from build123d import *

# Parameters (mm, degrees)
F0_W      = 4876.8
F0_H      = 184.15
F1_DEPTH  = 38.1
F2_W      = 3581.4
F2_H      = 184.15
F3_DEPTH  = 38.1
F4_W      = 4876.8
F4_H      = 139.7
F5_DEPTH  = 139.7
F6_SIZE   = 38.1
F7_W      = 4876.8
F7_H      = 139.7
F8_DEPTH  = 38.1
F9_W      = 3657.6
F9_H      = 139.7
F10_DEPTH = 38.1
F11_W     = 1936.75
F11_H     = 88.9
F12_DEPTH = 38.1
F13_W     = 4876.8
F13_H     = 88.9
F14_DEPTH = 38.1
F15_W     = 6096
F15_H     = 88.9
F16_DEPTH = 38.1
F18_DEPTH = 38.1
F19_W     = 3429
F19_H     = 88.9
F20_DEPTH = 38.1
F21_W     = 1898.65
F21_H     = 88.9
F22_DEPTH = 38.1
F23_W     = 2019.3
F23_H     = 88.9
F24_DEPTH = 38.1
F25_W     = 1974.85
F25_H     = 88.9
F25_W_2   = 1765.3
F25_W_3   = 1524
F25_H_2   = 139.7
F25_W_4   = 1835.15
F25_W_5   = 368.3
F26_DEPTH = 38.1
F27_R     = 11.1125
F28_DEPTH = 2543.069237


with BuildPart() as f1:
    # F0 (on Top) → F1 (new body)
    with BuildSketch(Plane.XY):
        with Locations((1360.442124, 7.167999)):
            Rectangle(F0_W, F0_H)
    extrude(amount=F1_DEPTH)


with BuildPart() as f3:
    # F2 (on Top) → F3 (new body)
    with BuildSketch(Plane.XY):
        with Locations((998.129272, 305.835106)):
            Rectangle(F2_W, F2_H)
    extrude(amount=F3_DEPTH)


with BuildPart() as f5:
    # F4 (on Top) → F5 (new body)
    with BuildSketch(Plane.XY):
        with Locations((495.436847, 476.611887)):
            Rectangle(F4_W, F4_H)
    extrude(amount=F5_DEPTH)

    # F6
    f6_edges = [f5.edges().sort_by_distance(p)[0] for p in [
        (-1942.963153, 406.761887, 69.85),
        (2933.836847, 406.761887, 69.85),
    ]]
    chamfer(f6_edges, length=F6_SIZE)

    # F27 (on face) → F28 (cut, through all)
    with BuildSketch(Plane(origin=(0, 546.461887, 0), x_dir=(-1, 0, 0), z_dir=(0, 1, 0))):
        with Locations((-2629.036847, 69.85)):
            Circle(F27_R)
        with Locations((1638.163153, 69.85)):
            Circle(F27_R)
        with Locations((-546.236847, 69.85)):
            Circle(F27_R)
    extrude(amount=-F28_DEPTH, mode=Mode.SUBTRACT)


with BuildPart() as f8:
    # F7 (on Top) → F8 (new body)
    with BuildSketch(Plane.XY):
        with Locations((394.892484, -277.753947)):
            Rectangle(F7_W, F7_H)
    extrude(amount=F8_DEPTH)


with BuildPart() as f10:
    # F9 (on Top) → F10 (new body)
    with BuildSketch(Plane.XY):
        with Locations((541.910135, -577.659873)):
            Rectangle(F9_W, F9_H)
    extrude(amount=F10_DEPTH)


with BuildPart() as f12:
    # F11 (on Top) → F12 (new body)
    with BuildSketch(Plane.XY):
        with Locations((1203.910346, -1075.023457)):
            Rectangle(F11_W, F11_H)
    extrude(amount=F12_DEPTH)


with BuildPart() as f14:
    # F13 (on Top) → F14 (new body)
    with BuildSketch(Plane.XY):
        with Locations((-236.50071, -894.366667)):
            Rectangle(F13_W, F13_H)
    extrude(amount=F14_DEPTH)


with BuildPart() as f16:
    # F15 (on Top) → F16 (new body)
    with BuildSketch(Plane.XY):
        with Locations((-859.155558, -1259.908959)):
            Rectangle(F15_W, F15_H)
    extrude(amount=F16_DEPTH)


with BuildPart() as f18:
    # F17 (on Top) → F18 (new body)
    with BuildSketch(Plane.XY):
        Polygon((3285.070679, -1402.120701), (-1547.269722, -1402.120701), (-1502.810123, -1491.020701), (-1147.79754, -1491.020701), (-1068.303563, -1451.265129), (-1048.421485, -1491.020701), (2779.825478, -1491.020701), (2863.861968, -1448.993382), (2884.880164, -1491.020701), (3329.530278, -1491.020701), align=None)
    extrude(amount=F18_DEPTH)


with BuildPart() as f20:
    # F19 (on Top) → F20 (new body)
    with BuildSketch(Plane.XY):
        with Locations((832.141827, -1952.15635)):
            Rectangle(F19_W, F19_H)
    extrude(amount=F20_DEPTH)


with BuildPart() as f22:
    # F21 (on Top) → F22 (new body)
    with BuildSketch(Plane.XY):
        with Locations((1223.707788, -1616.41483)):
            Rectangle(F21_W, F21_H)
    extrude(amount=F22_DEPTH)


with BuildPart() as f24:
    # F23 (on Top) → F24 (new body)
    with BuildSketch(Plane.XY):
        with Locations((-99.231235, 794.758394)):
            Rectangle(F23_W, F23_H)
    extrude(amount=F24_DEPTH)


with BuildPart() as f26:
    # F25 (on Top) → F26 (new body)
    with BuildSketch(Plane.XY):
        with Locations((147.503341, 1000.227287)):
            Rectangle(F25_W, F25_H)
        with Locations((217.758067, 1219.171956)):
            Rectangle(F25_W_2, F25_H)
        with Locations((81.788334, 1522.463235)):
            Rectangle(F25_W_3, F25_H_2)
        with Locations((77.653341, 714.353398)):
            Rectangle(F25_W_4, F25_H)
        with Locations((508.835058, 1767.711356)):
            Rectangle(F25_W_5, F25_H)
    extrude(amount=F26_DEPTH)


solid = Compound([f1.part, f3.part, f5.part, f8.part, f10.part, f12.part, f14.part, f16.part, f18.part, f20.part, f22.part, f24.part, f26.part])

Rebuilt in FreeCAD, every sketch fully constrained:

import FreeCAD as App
import Part
import Sketcher
from FreeCAD import Vector
Q = App.Units.Quantity


def edges_at(feature, points):
    """Names of the edges that pass closest to the given points."""
    edges = feature.Shape.Edges
    near = lambda p: min(range(len(edges)), key=lambda i: edges[i].distToShape(Part.Vertex(*p))[0])
    return sorted({f"Edge{near(p) + 1}" for p in points})

doc = App.newDocument("Part")
body = doc.addObject("PartDesign::Body", "Body")

# Sketch on XY plane
sketch1 = body.newObject("Sketcher::SketchObject", "Sketch")
sketch1.AttachmentSupport = (doc.getObject("XY_Plane"), [""])
sketch1.MapMode = "FlatFace"
sketch1.addGeometry(Part.LineSegment(Vector(-1078, 99, 0), Vector(-1078, -85, 0)), False)
sketch1.addGeometry(Part.LineSegment(Vector(-1078, -85, 0), Vector(3799, -85, 0)), False)
sketch1.addGeometry(Part.LineSegment(Vector(3799, -85, 0), Vector(3799, 99, 0)), False)
sketch1.addGeometry(Part.LineSegment(Vector(3799, 99, 0), Vector(-1078, 99, 0)), False)
sketch1.addConstraint(Sketcher.Constraint("Coincident", 0, 2, 1, 1))
sketch1.addConstraint(Sketcher.Constraint("Coincident", 1, 2, 2, 1))
sketch1.addConstraint(Sketcher.Constraint("Coincident", 2, 2, 3, 1))
sketch1.addConstraint(Sketcher.Constraint("Coincident", 3, 2, 0, 1))
sketch1.addConstraint(Sketcher.Constraint("Vertical", 0))
sketch1.addConstraint(Sketcher.Constraint("Horizontal", 1))
sketch1.addConstraint(Sketcher.Constraint("Vertical", 2))
sketch1.addConstraint(Sketcher.Constraint("Horizontal", 3))
sketch1.addConstraint(Sketcher.Constraint("DistanceX", 1, 1, 1, 2, Q("192 in")))
sketch1.addConstraint(Sketcher.Constraint("DistanceY", 0, 2, 0, 1, Q("7.25 in")))
sketch1.addConstraint(Sketcher.Constraint("DistanceY", 0, 2, -1, 1, 84.907001))
sketch1.addConstraint(Sketcher.Constraint("DistanceX", 0, 2, -1, 1, 1077.957876))
pad1 = body.newObject("PartDesign::Pad", "Pad")
pad1.Profile = sketch1
pad1.Length = Q("1.5 in")
body2 = doc.addObject("PartDesign::Body", "Body001")

# Sketch on XY plane
sketch2 = body2.newObject("Sketcher::SketchObject", "Sketch001")
sketch2.AttachmentSupport = (doc.getObject("XY_Plane001"), [""])
sketch2.MapMode = "FlatFace"
sketch2.addGeometry(Part.LineSegment(Vector(-793, 398, 0), Vector(-793, 214, 0)), False)
sketch2.addGeometry(Part.LineSegment(Vector(-793, 214, 0), Vector(2789, 214, 0)), False)
sketch2.addGeometry(Part.LineSegment(Vector(2789, 214, 0), Vector(2789, 398, 0)), False)
sketch2.addGeometry(Part.LineSegment(Vector(2789, 398, 0), Vector(-793, 398, 0)), False)
sketch2.addConstraint(Sketcher.Constraint("Coincident", 0, 2, 1, 1))
sketch2.addConstraint(Sketcher.Constraint("Coincident", 1, 2, 2, 1))
sketch2.addConstraint(Sketcher.Constraint("Coincident", 2, 2, 3, 1))
sketch2.addConstraint(Sketcher.Constraint("Coincident", 3, 2, 0, 1))
sketch2.addConstraint(Sketcher.Constraint("Vertical", 0))
sketch2.addConstraint(Sketcher.Constraint("Horizontal", 1))
sketch2.addConstraint(Sketcher.Constraint("Vertical", 2))
sketch2.addConstraint(Sketcher.Constraint("Horizontal", 3))
sketch2.addConstraint(Sketcher.Constraint("DistanceX", 1, 1, 1, 2, Q("141 in")))
sketch2.addConstraint(Sketcher.Constraint("DistanceY", 0, 2, 0, 1, Q("7.25 in")))
sketch2.addConstraint(Sketcher.Constraint("DistanceX", 0, 2, -1, 1, 792.570728))
sketch2.addConstraint(Sketcher.Constraint("DistanceY", -1, 1, 0, 2, 213.760106))
pad2 = body2.newObject("PartDesign::Pad", "Pad001")
pad2.Profile = sketch2
pad2.Length = Q("1.5 in")
body3 = doc.addObject("PartDesign::Body", "Body002")

# Sketch on XY plane
sketch3 = body3.newObject("Sketcher::SketchObject", "Sketch002")
sketch3.AttachmentSupport = (doc.getObject("XY_Plane002"), [""])
sketch3.MapMode = "FlatFace"
sketch3.addGeometry(Part.LineSegment(Vector(-1943, 546, 0), Vector(-1943, 407, 0)), False)
sketch3.addGeometry(Part.LineSegment(Vector(-1943, 407, 0), Vector(2934, 407, 0)), False)
sketch3.addGeometry(Part.LineSegment(Vector(2934, 407, 0), Vector(2934, 546, 0)), False)
sketch3.addGeometry(Part.LineSegment(Vector(2934, 546, 0), Vector(-1943, 546, 0)), False)
sketch3.addConstraint(Sketcher.Constraint("Coincident", 0, 2, 1, 1))
sketch3.addConstraint(Sketcher.Constraint("Coincident", 1, 2, 2, 1))
sketch3.addConstraint(Sketcher.Constraint("Coincident", 2, 2, 3, 1))
sketch3.addConstraint(Sketcher.Constraint("Coincident", 3, 2, 0, 1))
sketch3.addConstraint(Sketcher.Constraint("Vertical", 0))
sketch3.addConstraint(Sketcher.Constraint("Horizontal", 1))
sketch3.addConstraint(Sketcher.Constraint("Vertical", 2))
sketch3.addConstraint(Sketcher.Constraint("Horizontal", 3))
sketch3.addConstraint(Sketcher.Constraint("DistanceX", 1, 1, 1, 2, Q("192 in")))
sketch3.addConstraint(Sketcher.Constraint("DistanceY", 0, 2, 0, 1, Q("5.5 in")))
sketch3.addConstraint(Sketcher.Constraint("DistanceX", 0, 2, -1, 1, 1942.963153))
sketch3.addConstraint(Sketcher.Constraint("DistanceY", -1, 1, 0, 2, 406.761887))
pad3 = body3.newObject("PartDesign::Pad", "Pad002")
pad3.Profile = sketch3
pad3.Length = Q("5.5 in")
doc.recompute()

chamfer = body3.newObject("PartDesign::Chamfer", "Chamfer")
chamfer.Base = (pad3, edges_at(pad3, [(-1942.963, 406.762, 69.85), (2933.837, 406.762, 69.85)]))
chamfer.Size = Q("1.5 in")

# Sketch on XZ plane
sketch4 = body3.newObject("Sketcher::SketchObject", "Sketch003")
sketch4.AttachmentSupport = (doc.getObject("XZ_Plane002"), [""])
sketch4.MapMode = "FlatFace"
sketch4.AttachmentOffset = App.Placement(Vector(0, 0, -546.461887), App.Rotation())
sketch4.addGeometry(Part.Circle(Vector(2629, 70, 0), Vector(0, 0, 1), 11), False)
sketch4.addGeometry(Part.Circle(Vector(-1638, 70, 0), Vector(0, 0, 1), 11), False)
sketch4.addGeometry(Part.Circle(Vector(546, 70, 0), Vector(0, 0, 1), 11), False)
sketch4.addConstraint(Sketcher.Constraint("Equal", 0, 1))
sketch4.addConstraint(Sketcher.Constraint("Equal", 1, 2))
sketch4.addConstraint(Sketcher.Constraint("Horizontal", 0, 3, 1, 3))
sketch4.addConstraint(Sketcher.Constraint("Horizontal", 1, 3, 2, 3))
sketch4.addConstraint(Sketcher.Constraint("Diameter", 0, Q("0.875 in")))
sketch4.addConstraint(Sketcher.Constraint("DistanceX", 1, 3, 0, 3, Q("168 in")))
sketch4.addConstraint(Sketcher.Constraint("DistanceX", 2, 3, 0, 3, Q("82 in")))
sketch4.addConstraint(Sketcher.Constraint("DistanceY", -1, 1, 0, 3, Q("2.75 in")))
sketch4.addConstraint(Sketcher.Constraint("DistanceX", -1, 1, 0, 3, 2629.036847))
pocket1 = body3.newObject("PartDesign::Pocket", "Pocket")
pocket1.Profile = sketch4
pocket1.Type = "ThroughAll"
pocket1.Reversed = True
body4 = doc.addObject("PartDesign::Body", "Body003")

# Sketch on XY plane
sketch5 = body4.newObject("Sketcher::SketchObject", "Sketch004")
sketch5.AttachmentSupport = (doc.getObject("XY_Plane003"), [""])
sketch5.MapMode = "FlatFace"
sketch5.addGeometry(Part.LineSegment(Vector(-2044, -208, 0), Vector(-2044, -348, 0)), False)
sketch5.addGeometry(Part.LineSegment(Vector(-2044, -348, 0), Vector(2833, -348, 0)), False)
sketch5.addGeometry(Part.LineSegment(Vector(2833, -348, 0), Vector(2833, -208, 0)), False)
sketch5.addGeometry(Part.LineSegment(Vector(2833, -208, 0), Vector(-2044, -208, 0)), False)
sketch5.addConstraint(Sketcher.Constraint("Coincident", 0, 2, 1, 1))
sketch5.addConstraint(Sketcher.Constraint("Coincident", 1, 2, 2, 1))
sketch5.addConstraint(Sketcher.Constraint("Coincident", 2, 2, 3, 1))
sketch5.addConstraint(Sketcher.Constraint("Coincident", 3, 2, 0, 1))
sketch5.addConstraint(Sketcher.Constraint("Vertical", 0))
sketch5.addConstraint(Sketcher.Constraint("Horizontal", 1))
sketch5.addConstraint(Sketcher.Constraint("Vertical", 2))
sketch5.addConstraint(Sketcher.Constraint("Horizontal", 3))
sketch5.addConstraint(Sketcher.Constraint("DistanceX", 1, 1, 1, 2, Q("192 in")))
sketch5.addConstraint(Sketcher.Constraint("DistanceY", 0, 2, 0, 1, Q("5.5 in")))
sketch5.addConstraint(Sketcher.Constraint("DistanceX", 0, 2, -1, 1, 2043.507516))
sketch5.addConstraint(Sketcher.Constraint("DistanceY", 0, 2, -1, 1, 347.603947))
pad4 = body4.newObject("PartDesign::Pad", "Pad003")
pad4.Profile = sketch5
pad4.Length = Q("1.5 in")
body5 = doc.addObject("PartDesign::Body", "Body004")

# Sketch on XY plane
sketch6 = body5.newObject("Sketcher::SketchObject", "Sketch005")
sketch6.AttachmentSupport = (doc.getObject("XY_Plane004"), [""])
sketch6.MapMode = "FlatFace"
sketch6.addGeometry(Part.LineSegment(Vector(-1287, -508, 0), Vector(-1287, -648, 0)), False)
sketch6.addGeometry(Part.LineSegment(Vector(-1287, -648, 0), Vector(2371, -648, 0)), False)
sketch6.addGeometry(Part.LineSegment(Vector(2371, -648, 0), Vector(2371, -508, 0)), False)
sketch6.addGeometry(Part.LineSegment(Vector(2371, -508, 0), Vector(-1287, -508, 0)), False)
sketch6.addConstraint(Sketcher.Constraint("Coincident", 0, 2, 1, 1))
sketch6.addConstraint(Sketcher.Constraint("Coincident", 1, 2, 2, 1))
sketch6.addConstraint(Sketcher.Constraint("Coincident", 2, 2, 3, 1))
sketch6.addConstraint(Sketcher.Constraint("Coincident", 3, 2, 0, 1))
sketch6.addConstraint(Sketcher.Constraint("Vertical", 0))
sketch6.addConstraint(Sketcher.Constraint("Horizontal", 1))
sketch6.addConstraint(Sketcher.Constraint("Vertical", 2))
sketch6.addConstraint(Sketcher.Constraint("Horizontal", 3))
sketch6.addConstraint(Sketcher.Constraint("DistanceX", 1, 1, 1, 2, Q("144 in")))
sketch6.addConstraint(Sketcher.Constraint("DistanceY", 0, 2, 0, 1, Q("5.5 in")))
sketch6.addConstraint(Sketcher.Constraint("DistanceX", 0, 2, -1, 1, 1286.889865))
sketch6.addConstraint(Sketcher.Constraint("DistanceY", 0, 2, -1, 1, 647.509873))
pad5 = body5.newObject("PartDesign::Pad", "Pad004")
pad5.Profile = sketch6
pad5.Length = Q("1.5 in")
body6 = doc.addObject("PartDesign::Body", "Body005")

# Sketch on XY plane
sketch7 = body6.newObject("Sketcher::SketchObject", "Sketch006")
sketch7.AttachmentSupport = (doc.getObject("XY_Plane005"), [""])
sketch7.MapMode = "FlatFace"
sketch7.addGeometry(Part.LineSegment(Vector(236, -1031, 0), Vector(236, -1119, 0)), False)
sketch7.addGeometry(Part.LineSegment(Vector(236, -1119, 0), Vector(2172, -1119, 0)), False)
sketch7.addGeometry(Part.LineSegment(Vector(2172, -1119, 0), Vector(2172, -1031, 0)), False)
sketch7.addGeometry(Part.LineSegment(Vector(2172, -1031, 0), Vector(236, -1031, 0)), False)
sketch7.addConstraint(Sketcher.Constraint("Coincident", 0, 2, 1, 1))
sketch7.addConstraint(Sketcher.Constraint("Coincident", 1, 2, 2, 1))
sketch7.addConstraint(Sketcher.Constraint("Coincident", 2, 2, 3, 1))
sketch7.addConstraint(Sketcher.Constraint("Coincident", 3, 2, 0, 1))
sketch7.addConstraint(Sketcher.Constraint("Vertical", 0))
sketch7.addConstraint(Sketcher.Constraint("Horizontal", 1))
sketch7.addConstraint(Sketcher.Constraint("Vertical", 2))
sketch7.addConstraint(Sketcher.Constraint("Horizontal", 3))
sketch7.addConstraint(Sketcher.Constraint("DistanceY", 0, 2, 0, 1, Q("3.5 in")))
sketch7.addConstraint(Sketcher.Constraint("DistanceX", 1, 1, 1, 2, Q("76.25 in")))
sketch7.addConstraint(Sketcher.Constraint("DistanceX", -1, 1, 0, 2, 235.535346))
sketch7.addConstraint(Sketcher.Constraint("DistanceY", 0, 2, -1, 1, 1119.473457))
pad6 = body6.newObject("PartDesign::Pad", "Pad005")
pad6.Profile = sketch7
pad6.Length = Q("1.5 in")
body7 = doc.addObject("PartDesign::Body", "Body006")

# Sketch on XY plane
sketch8 = body7.newObject("Sketcher::SketchObject", "Sketch007")
sketch8.AttachmentSupport = (doc.getObject("XY_Plane006"), [""])
sketch8.MapMode = "FlatFace"
sketch8.addGeometry(Part.LineSegment(Vector(-2675, -850, 0), Vector(-2675, -939, 0)), False)
sketch8.addGeometry(Part.LineSegment(Vector(-2675, -939, 0), Vector(2202, -939, 0)), False)
sketch8.addGeometry(Part.LineSegment(Vector(2202, -939, 0), Vector(2202, -850, 0)), False)
sketch8.addGeometry(Part.LineSegment(Vector(2202, -850, 0), Vector(-2675, -850, 0)), False)
sketch8.addConstraint(Sketcher.Constraint("Coincident", 0, 2, 1, 1))
sketch8.addConstraint(Sketcher.Constraint("Coincident", 1, 2, 2, 1))
sketch8.addConstraint(Sketcher.Constraint("Coincident", 2, 2, 3, 1))
sketch8.addConstraint(Sketcher.Constraint("Coincident", 3, 2, 0, 1))
sketch8.addConstraint(Sketcher.Constraint("Vertical", 0))
sketch8.addConstraint(Sketcher.Constraint("Horizontal", 1))
sketch8.addConstraint(Sketcher.Constraint("Vertical", 2))
sketch8.addConstraint(Sketcher.Constraint("Horizontal", 3))
sketch8.addConstraint(Sketcher.Constraint("DistanceX", 1, 1, 1, 2, Q("192 in")))
sketch8.addConstraint(Sketcher.Constraint("DistanceY", 0, 2, 0, 1, Q("3.5 in")))
sketch8.addConstraint(Sketcher.Constraint("DistanceX", 0, 2, -1, 1, 2674.90071))
sketch8.addConstraint(Sketcher.Constraint("DistanceY", 0, 2, -1, 1, 938.816667))
pad7 = body7.newObject("PartDesign::Pad", "Pad006")
pad7.Profile = sketch8
pad7.Length = Q("1.5 in")
body8 = doc.addObject("PartDesign::Body", "Body007")

# Sketch on XY plane
sketch9 = body8.newObject("Sketcher::SketchObject", "Sketch008")
sketch9.AttachmentSupport = (doc.getObject("XY_Plane007"), [""])
sketch9.MapMode = "FlatFace"
sketch9.addGeometry(Part.LineSegment(Vector(-3907, -1215, 0), Vector(-3907, -1304, 0)), False)
sketch9.addGeometry(Part.LineSegment(Vector(-3907, -1304, 0), Vector(2189, -1304, 0)), False)
sketch9.addGeometry(Part.LineSegment(Vector(2189, -1304, 0), Vector(2189, -1215, 0)), False)
sketch9.addGeometry(Part.LineSegment(Vector(2189, -1215, 0), Vector(-3907, -1215, 0)), False)
sketch9.addConstraint(Sketcher.Constraint("Coincident", 0, 2, 1, 1))
sketch9.addConstraint(Sketcher.Constraint("Coincident", 1, 2, 2, 1))
sketch9.addConstraint(Sketcher.Constraint("Coincident", 2, 2, 3, 1))
sketch9.addConstraint(Sketcher.Constraint("Coincident", 3, 2, 0, 1))
sketch9.addConstraint(Sketcher.Constraint("Vertical", 0))
sketch9.addConstraint(Sketcher.Constraint("Horizontal", 1))
sketch9.addConstraint(Sketcher.Constraint("Vertical", 2))
sketch9.addConstraint(Sketcher.Constraint("Horizontal", 3))
sketch9.addConstraint(Sketcher.Constraint("DistanceX", 1, 1, 1, 2, Q("240 in")))
sketch9.addConstraint(Sketcher.Constraint("DistanceY", 0, 2, 0, 1, Q("3.5 in")))
sketch9.addConstraint(Sketcher.Constraint("DistanceY", 0, 2, -1, 1, 1304.358959))
sketch9.addConstraint(Sketcher.Constraint("DistanceX", 0, 2, -1, 1, 3907.155558))
pad8 = body8.newObject("PartDesign::Pad", "Pad007")
pad8.Profile = sketch9
pad8.Length = Q("1.5 in")
body9 = doc.addObject("PartDesign::Body", "Body008")

# Sketch on XY plane
sketch10 = body9.newObject("Sketcher::SketchObject", "Sketch009")
sketch10.AttachmentSupport = (doc.getObject("XY_Plane008"), [""])
sketch10.MapMode = "FlatFace"
sketch10.addGeometry(Part.LineSegment(Vector(3285, -1402, 0), Vector(-1547, -1402, 0)), False)
sketch10.addGeometry(Part.LineSegment(Vector(-1547, -1402, 0), Vector(-1503, -1491, 0)), False)
sketch10.addGeometry(Part.LineSegment(Vector(-1503, -1491, 0), Vector(-1148, -1491, 0)), False)
sketch10.addGeometry(Part.LineSegment(Vector(-1148, -1491, 0), Vector(-1068, -1451, 0)), False)
sketch10.addGeometry(Part.LineSegment(Vector(-1068, -1451, 0), Vector(-1048, -1491, 0)), False)
sketch10.addGeometry(Part.LineSegment(Vector(-1048, -1491, 0), Vector(2780, -1491, 0)), False)
sketch10.addGeometry(Part.LineSegment(Vector(2780, -1491, 0), Vector(2864, -1449, 0)), False)
sketch10.addGeometry(Part.LineSegment(Vector(2864, -1449, 0), Vector(2885, -1491, 0)), False)
sketch10.addGeometry(Part.LineSegment(Vector(2885, -1491, 0), Vector(3330, -1491, 0)), False)
sketch10.addGeometry(Part.LineSegment(Vector(3330, -1491, 0), Vector(3285, -1402, 0)), False)
sketch10.addConstraint(Sketcher.Constraint("Coincident", 0, 2, 1, 1))
sketch10.addConstraint(Sketcher.Constraint("Coincident", 1, 2, 2, 1))
sketch10.addConstraint(Sketcher.Constraint("Coincident", 2, 2, 3, 1))
sketch10.addConstraint(Sketcher.Constraint("Coincident", 3, 2, 4, 1))
sketch10.addConstraint(Sketcher.Constraint("Coincident", 4, 2, 5, 1))
sketch10.addConstraint(Sketcher.Constraint("Coincident", 5, 2, 6, 1))
sketch10.addConstraint(Sketcher.Constraint("Coincident", 6, 2, 7, 1))
sketch10.addConstraint(Sketcher.Constraint("Coincident", 7, 2, 8, 1))
sketch10.addConstraint(Sketcher.Constraint("Coincident", 8, 2, 9, 1))
sketch10.addConstraint(Sketcher.Constraint("Coincident", 9, 2, 0, 1))
sketch10.addConstraint(Sketcher.Constraint("Horizontal", 0))
sketch10.addConstraint(Sketcher.Constraint("Horizontal", 2))
sketch10.addConstraint(Sketcher.Constraint("Horizontal", 5))
sketch10.addConstraint(Sketcher.Constraint("Horizontal", 8))
sketch10.addConstraint(Sketcher.Constraint("Perpendicular", 1, 3))
sketch10.addConstraint(Sketcher.Constraint("Perpendicular", 3, 4))
sketch10.addConstraint(Sketcher.Constraint("Perpendicular", 4, 6))
sketch10.addConstraint(Sketcher.Constraint("Perpendicular", 6, 7))
sketch10.addConstraint(Sketcher.Constraint("Parallel", 7, 9))
sketch10.addConstraint(Sketcher.Constraint("Horizontal", 2, 2, 4, 2))
sketch10.addConstraint(Sketcher.Constraint("Horizontal", 5, 2, 7, 2))
sketch10.addConstraint(Sketcher.Constraint("DistanceY", 1, 2, 0, 2, Q("3.5 in")))
sketch10.addConstraint(Sketcher.Constraint("Distance", 4, Q("1.75 in")))
sketch10.addConstraint(Sketcher.Constraint("Distance", 7, Q("1.85 in")))
sketch10.addConstraint(Sketcher.Constraint("Angle", 1, Q("-63.43 deg")))
sketch10.addConstraint(Sketcher.Constraint("DistanceX", 0, 2, 0, 1, 4832.340401))
sketch10.addConstraint(Sketcher.Constraint("DistanceY", 0, 2, -1, 1, 1402.120701))
sketch10.addConstraint(Sketcher.Constraint("DistanceX", 1, 2, 5, 2, 4282.635601))
sketch10.addConstraint(Sketcher.Constraint("DistanceX", 2, 1, 2, 2, 355.012583))
sketch10.addConstraint(Sketcher.Constraint("DistanceX", 0, 2, -1, 1, 1547.269722))
pad9 = body9.newObject("PartDesign::Pad", "Pad008")
pad9.Profile = sketch10
pad9.Length = Q("1.5 in")
body10 = doc.addObject("PartDesign::Body", "Body009")

# Sketch on XY plane
sketch11 = body10.newObject("Sketcher::SketchObject", "Sketch010")
sketch11.AttachmentSupport = (doc.getObject("XY_Plane009"), [""])
sketch11.MapMode = "FlatFace"
sketch11.addGeometry(Part.LineSegment(Vector(-882, -1908, 0), Vector(-882, -1997, 0)), False)
sketch11.addGeometry(Part.LineSegment(Vector(-882, -1997, 0), Vector(2547, -1997, 0)), False)
sketch11.addGeometry(Part.LineSegment(Vector(2547, -1997, 0), Vector(2547, -1908, 0)), False)
sketch11.addGeometry(Part.LineSegment(Vector(2547, -1908, 0), Vector(-882, -1908, 0)), False)
sketch11.addConstraint(Sketcher.Constraint("Coincident", 0, 2, 1, 1))
sketch11.addConstraint(Sketcher.Constraint("Coincident", 1, 2, 2, 1))
sketch11.addConstraint(Sketcher.Constraint("Coincident", 2, 2, 3, 1))
sketch11.addConstraint(Sketcher.Constraint("Coincident", 3, 2, 0, 1))
sketch11.addConstraint(Sketcher.Constraint("Vertical", 0))
sketch11.addConstraint(Sketcher.Constraint("Horizontal", 1))
sketch11.addConstraint(Sketcher.Constraint("Vertical", 2))
sketch11.addConstraint(Sketcher.Constraint("Horizontal", 3))
sketch11.addConstraint(Sketcher.Constraint("DistanceX", 1, 1, 1, 2, Q("135 in")))
sketch11.addConstraint(Sketcher.Constraint("DistanceY", 0, 2, 0, 1, Q("3.5 in")))
sketch11.addConstraint(Sketcher.Constraint("DistanceY", 0, 2, -1, 1, 1996.60635))
sketch11.addConstraint(Sketcher.Constraint("DistanceX", 0, 2, -1, 1, 882.358173))
pad10 = body10.newObject("PartDesign::Pad", "Pad009")
pad10.Profile = sketch11
pad10.Length = Q("1.5 in")
body11 = doc.addObject("PartDesign::Body", "Body010")

# Sketch on XY plane
sketch12 = body11.newObject("Sketcher::SketchObject", "Sketch011")
sketch12.AttachmentSupport = (doc.getObject("XY_Plane010"), [""])
sketch12.MapMode = "FlatFace"
sketch12.addGeometry(Part.LineSegment(Vector(274, -1572, 0), Vector(274, -1661, 0)), False)
sketch12.addGeometry(Part.LineSegment(Vector(274, -1661, 0), Vector(2173, -1661, 0)), False)
sketch12.addGeometry(Part.LineSegment(Vector(2173, -1661, 0), Vector(2173, -1572, 0)), False)
sketch12.addGeometry(Part.LineSegment(Vector(2173, -1572, 0), Vector(274, -1572, 0)), False)
sketch12.addConstraint(Sketcher.Constraint("Coincident", 0, 2, 1, 1))
sketch12.addConstraint(Sketcher.Constraint("Coincident", 1, 2, 2, 1))
sketch12.addConstraint(Sketcher.Constraint("Coincident", 2, 2, 3, 1))
sketch12.addConstraint(Sketcher.Constraint("Coincident", 3, 2, 0, 1))
sketch12.addConstraint(Sketcher.Constraint("Vertical", 0))
sketch12.addConstraint(Sketcher.Constraint("Horizontal", 1))
sketch12.addConstraint(Sketcher.Constraint("Vertical", 2))
sketch12.addConstraint(Sketcher.Constraint("Horizontal", 3))
sketch12.addConstraint(Sketcher.Constraint("DistanceY", 0, 2, 0, 1, Q("3.5 in")))
sketch12.addConstraint(Sketcher.Constraint("DistanceX", 1, 1, 1, 2, Q("74.75 in")))
sketch12.addConstraint(Sketcher.Constraint("DistanceX", -1, 1, 0, 2, 274.382788))
sketch12.addConstraint(Sketcher.Constraint("DistanceY", 0, 2, -1, 1, 1660.86483))
pad11 = body11.newObject("PartDesign::Pad", "Pad010")
pad11.Profile = sketch12
pad11.Length = Q("1.5 in")
body12 = doc.addObject("PartDesign::Body", "Body011")

# Sketch on XY plane
sketch13 = body12.newObject("Sketcher::SketchObject", "Sketch012")
sketch13.AttachmentSupport = (doc.getObject("XY_Plane011"), [""])
sketch13.MapMode = "FlatFace"
sketch13.addGeometry(Part.LineSegment(Vector(-1109, 839, 0), Vector(-1109, 750, 0)), False)
sketch13.addGeometry(Part.LineSegment(Vector(-1109, 750, 0), Vector(910, 750, 0)), False)
sketch13.addGeometry(Part.LineSegment(Vector(910, 750, 0), Vector(910, 839, 0)), False)
sketch13.addGeometry(Part.LineSegment(Vector(910, 839, 0), Vector(-1109, 839, 0)), False)
sketch13.addConstraint(Sketcher.Constraint("Coincident", 0, 2, 1, 1))
sketch13.addConstraint(Sketcher.Constraint("Coincident", 1, 2, 2, 1))
sketch13.addConstraint(Sketcher.Constraint("Coincident", 2, 2, 3, 1))
sketch13.addConstraint(Sketcher.Constraint("Coincident", 3, 2, 0, 1))
sketch13.addConstraint(Sketcher.Constraint("Vertical", 0))
sketch13.addConstraint(Sketcher.Constraint("Horizontal", 1))
sketch13.addConstraint(Sketcher.Constraint("Vertical", 2))
sketch13.addConstraint(Sketcher.Constraint("Horizontal", 3))
sketch13.addConstraint(Sketcher.Constraint("DistanceX", 1, 1, 1, 2, Q("79.5 in")))
sketch13.addConstraint(Sketcher.Constraint("DistanceY", 0, 2, 0, 1, Q("3.5 in")))
sketch13.addConstraint(Sketcher.Constraint("DistanceX", 0, 2, -1, 1, 1108.881235))
sketch13.addConstraint(Sketcher.Constraint("DistanceY", -1, 1, 0, 2, 750.308394))
pad12 = body12.newObject("PartDesign::Pad", "Pad011")
pad12.Profile = sketch13
pad12.Length = Q("1.5 in")
body13 = doc.addObject("PartDesign::Body", "Body012")
body13.AllowCompound = True

# Sketch on XY plane
sketch14 = body13.newObject("Sketcher::SketchObject", "Sketch013")
sketch14.AttachmentSupport = (doc.getObject("XY_Plane012"), [""])
sketch14.MapMode = "FlatFace"
sketch14.addGeometry(Part.LineSegment(Vector(-840, 1045, 0), Vector(-840, 956, 0)), False)
sketch14.addGeometry(Part.LineSegment(Vector(-840, 956, 0), Vector(1135, 956, 0)), False)
sketch14.addGeometry(Part.LineSegment(Vector(1135, 956, 0), Vector(1135, 1045, 0)), False)
sketch14.addGeometry(Part.LineSegment(Vector(1135, 1045, 0), Vector(-840, 1045, 0)), False)
sketch14.addGeometry(Part.LineSegment(Vector(-665, 1264, 0), Vector(-665, 1175, 0)), False)
sketch14.addGeometry(Part.LineSegment(Vector(-665, 1175, 0), Vector(1100, 1175, 0)), False)
sketch14.addGeometry(Part.LineSegment(Vector(1100, 1175, 0), Vector(1100, 1264, 0)), False)
sketch14.addGeometry(Part.LineSegment(Vector(1100, 1264, 0), Vector(-665, 1264, 0)), False)
sketch14.addGeometry(Part.LineSegment(Vector(-680, 1592, 0), Vector(-680, 1453, 0)), False)
sketch14.addGeometry(Part.LineSegment(Vector(-680, 1453, 0), Vector(844, 1453, 0)), False)
sketch14.addGeometry(Part.LineSegment(Vector(844, 1453, 0), Vector(844, 1592, 0)), False)
sketch14.addGeometry(Part.LineSegment(Vector(844, 1592, 0), Vector(-680, 1592, 0)), False)
sketch14.addGeometry(Part.LineSegment(Vector(-840, 759, 0), Vector(-840, 670, 0)), False)
sketch14.addGeometry(Part.LineSegment(Vector(-840, 670, 0), Vector(995, 670, 0)), False)
sketch14.addGeometry(Part.LineSegment(Vector(995, 670, 0), Vector(995, 759, 0)), False)
sketch14.addGeometry(Part.LineSegment(Vector(995, 759, 0), Vector(-840, 759, 0)), False)
sketch14.addGeometry(Part.LineSegment(Vector(325, 1812, 0), Vector(325, 1723, 0)), False)
sketch14.addGeometry(Part.LineSegment(Vector(325, 1723, 0), Vector(693, 1723, 0)), False)
sketch14.addGeometry(Part.LineSegment(Vector(693, 1723, 0), Vector(693, 1812, 0)), False)
sketch14.addGeometry(Part.LineSegment(Vector(693, 1812, 0), Vector(325, 1812, 0)), False)
sketch14.addConstraint(Sketcher.Constraint("Coincident", 0, 2, 1, 1))
sketch14.addConstraint(Sketcher.Constraint("Coincident", 1, 2, 2, 1))
sketch14.addConstraint(Sketcher.Constraint("Coincident", 2, 2, 3, 1))
sketch14.addConstraint(Sketcher.Constraint("Coincident", 3, 2, 0, 1))
sketch14.addConstraint(Sketcher.Constraint("Coincident", 4, 2, 5, 1))
sketch14.addConstraint(Sketcher.Constraint("Coincident", 5, 2, 6, 1))
sketch14.addConstraint(Sketcher.Constraint("Coincident", 6, 2, 7, 1))
sketch14.addConstraint(Sketcher.Constraint("Coincident", 7, 2, 4, 1))
sketch14.addConstraint(Sketcher.Constraint("Coincident", 8, 2, 9, 1))
sketch14.addConstraint(Sketcher.Constraint("Coincident", 9, 2, 10, 1))
sketch14.addConstraint(Sketcher.Constraint("Coincident", 10, 2, 11, 1))
sketch14.addConstraint(Sketcher.Constraint("Coincident", 11, 2, 8, 1))
sketch14.addConstraint(Sketcher.Constraint("Coincident", 12, 2, 13, 1))
sketch14.addConstraint(Sketcher.Constraint("Coincident", 13, 2, 14, 1))
sketch14.addConstraint(Sketcher.Constraint("Coincident", 14, 2, 15, 1))
sketch14.addConstraint(Sketcher.Constraint("Coincident", 15, 2, 12, 1))
sketch14.addConstraint(Sketcher.Constraint("Coincident", 16, 2, 17, 1))
sketch14.addConstraint(Sketcher.Constraint("Coincident", 17, 2, 18, 1))
sketch14.addConstraint(Sketcher.Constraint("Coincident", 18, 2, 19, 1))
sketch14.addConstraint(Sketcher.Constraint("Coincident", 19, 2, 16, 1))
sketch14.addConstraint(Sketcher.Constraint("Vertical", 0))
sketch14.addConstraint(Sketcher.Constraint("Horizontal", 1))
sketch14.addConstraint(Sketcher.Constraint("Vertical", 2))
sketch14.addConstraint(Sketcher.Constraint("Horizontal", 3))
sketch14.addConstraint(Sketcher.Constraint("Vertical", 4))
sketch14.addConstraint(Sketcher.Constraint("Horizontal", 5))
sketch14.addConstraint(Sketcher.Constraint("Vertical", 6))
sketch14.addConstraint(Sketcher.Constraint("Horizontal", 7))
sketch14.addConstraint(Sketcher.Constraint("Vertical", 8))
sketch14.addConstraint(Sketcher.Constraint("Horizontal", 9))
sketch14.addConstraint(Sketcher.Constraint("Vertical", 10))
sketch14.addConstraint(Sketcher.Constraint("Horizontal", 11))
sketch14.addConstraint(Sketcher.Constraint("Vertical", 12))
sketch14.addConstraint(Sketcher.Constraint("Horizontal", 13))
sketch14.addConstraint(Sketcher.Constraint("Vertical", 14))
sketch14.addConstraint(Sketcher.Constraint("Horizontal", 15))
sketch14.addConstraint(Sketcher.Constraint("Vertical", 16))
sketch14.addConstraint(Sketcher.Constraint("Horizontal", 17))
sketch14.addConstraint(Sketcher.Constraint("Vertical", 18))
sketch14.addConstraint(Sketcher.Constraint("Horizontal", 19))
sketch14.addConstraint(Sketcher.Constraint("Vertical", 3, 2, 12, 2))
sketch14.addConstraint(Sketcher.Constraint("Equal", 2, 4))
sketch14.addConstraint(Sketcher.Constraint("Equal", 6, 12))
sketch14.addConstraint(Sketcher.Constraint("Equal", 14, 16))
sketch14.addConstraint(Sketcher.Constraint("DistanceX", 9, 1, 9, 2, Q("60 in")))
sketch14.addConstraint(Sketcher.Constraint("DistanceX", 5, 1, 5, 2, Q("69.5 in")))
sketch14.addConstraint(Sketcher.Constraint("DistanceX", 17, 1, 17, 2, Q("14.5 in")))
sketch14.addConstraint(Sketcher.Constraint("DistanceY", 0, 2, 0, 1, Q("3.5 in")))
sketch14.addConstraint(Sketcher.Constraint("DistanceY", 8, 2, 8, 1, Q("5.5 in")))
sketch14.addConstraint(Sketcher.Constraint("DistanceX", 1, 1, 1, 2, Q("77.75 in")))
sketch14.addConstraint(Sketcher.Constraint("DistanceX", 13, 1, 13, 2, Q("72.25 in")))
sketch14.addConstraint(Sketcher.Constraint("DistanceY", -1, 1, 12, 2, 669.903398))
sketch14.addConstraint(Sketcher.Constraint("DistanceY", 6, 2, 16, 2, 459.6394))
sketch14.addConstraint(Sketcher.Constraint("DistanceX", 0, 2, -1, 1, 839.921659))
sketch14.addConstraint(Sketcher.Constraint("DistanceX", -1, 1, 16, 2, 324.685058))
sketch14.addConstraint(Sketcher.Constraint("DistanceY", 3, 2, 4, 2, 130.044669))
sketch14.addConstraint(Sketcher.Constraint("DistanceY", 7, 2, 8, 2, 188.991279))
sketch14.addConstraint(Sketcher.Constraint("DistanceY", 12, 2, 0, 2, 285.873889))
sketch14.addConstraint(Sketcher.Constraint("DistanceX", 16, 2, 6, 2, 775.723009))
sketch14.addConstraint(Sketcher.Constraint("DistanceX", 8, 2, -1, 1, 680.211666))
pad13 = body13.newObject("PartDesign::Pad", "Pad012")
pad13.Profile = sketch14
pad13.Length = Q("1.5 in")

doc.recompute()
